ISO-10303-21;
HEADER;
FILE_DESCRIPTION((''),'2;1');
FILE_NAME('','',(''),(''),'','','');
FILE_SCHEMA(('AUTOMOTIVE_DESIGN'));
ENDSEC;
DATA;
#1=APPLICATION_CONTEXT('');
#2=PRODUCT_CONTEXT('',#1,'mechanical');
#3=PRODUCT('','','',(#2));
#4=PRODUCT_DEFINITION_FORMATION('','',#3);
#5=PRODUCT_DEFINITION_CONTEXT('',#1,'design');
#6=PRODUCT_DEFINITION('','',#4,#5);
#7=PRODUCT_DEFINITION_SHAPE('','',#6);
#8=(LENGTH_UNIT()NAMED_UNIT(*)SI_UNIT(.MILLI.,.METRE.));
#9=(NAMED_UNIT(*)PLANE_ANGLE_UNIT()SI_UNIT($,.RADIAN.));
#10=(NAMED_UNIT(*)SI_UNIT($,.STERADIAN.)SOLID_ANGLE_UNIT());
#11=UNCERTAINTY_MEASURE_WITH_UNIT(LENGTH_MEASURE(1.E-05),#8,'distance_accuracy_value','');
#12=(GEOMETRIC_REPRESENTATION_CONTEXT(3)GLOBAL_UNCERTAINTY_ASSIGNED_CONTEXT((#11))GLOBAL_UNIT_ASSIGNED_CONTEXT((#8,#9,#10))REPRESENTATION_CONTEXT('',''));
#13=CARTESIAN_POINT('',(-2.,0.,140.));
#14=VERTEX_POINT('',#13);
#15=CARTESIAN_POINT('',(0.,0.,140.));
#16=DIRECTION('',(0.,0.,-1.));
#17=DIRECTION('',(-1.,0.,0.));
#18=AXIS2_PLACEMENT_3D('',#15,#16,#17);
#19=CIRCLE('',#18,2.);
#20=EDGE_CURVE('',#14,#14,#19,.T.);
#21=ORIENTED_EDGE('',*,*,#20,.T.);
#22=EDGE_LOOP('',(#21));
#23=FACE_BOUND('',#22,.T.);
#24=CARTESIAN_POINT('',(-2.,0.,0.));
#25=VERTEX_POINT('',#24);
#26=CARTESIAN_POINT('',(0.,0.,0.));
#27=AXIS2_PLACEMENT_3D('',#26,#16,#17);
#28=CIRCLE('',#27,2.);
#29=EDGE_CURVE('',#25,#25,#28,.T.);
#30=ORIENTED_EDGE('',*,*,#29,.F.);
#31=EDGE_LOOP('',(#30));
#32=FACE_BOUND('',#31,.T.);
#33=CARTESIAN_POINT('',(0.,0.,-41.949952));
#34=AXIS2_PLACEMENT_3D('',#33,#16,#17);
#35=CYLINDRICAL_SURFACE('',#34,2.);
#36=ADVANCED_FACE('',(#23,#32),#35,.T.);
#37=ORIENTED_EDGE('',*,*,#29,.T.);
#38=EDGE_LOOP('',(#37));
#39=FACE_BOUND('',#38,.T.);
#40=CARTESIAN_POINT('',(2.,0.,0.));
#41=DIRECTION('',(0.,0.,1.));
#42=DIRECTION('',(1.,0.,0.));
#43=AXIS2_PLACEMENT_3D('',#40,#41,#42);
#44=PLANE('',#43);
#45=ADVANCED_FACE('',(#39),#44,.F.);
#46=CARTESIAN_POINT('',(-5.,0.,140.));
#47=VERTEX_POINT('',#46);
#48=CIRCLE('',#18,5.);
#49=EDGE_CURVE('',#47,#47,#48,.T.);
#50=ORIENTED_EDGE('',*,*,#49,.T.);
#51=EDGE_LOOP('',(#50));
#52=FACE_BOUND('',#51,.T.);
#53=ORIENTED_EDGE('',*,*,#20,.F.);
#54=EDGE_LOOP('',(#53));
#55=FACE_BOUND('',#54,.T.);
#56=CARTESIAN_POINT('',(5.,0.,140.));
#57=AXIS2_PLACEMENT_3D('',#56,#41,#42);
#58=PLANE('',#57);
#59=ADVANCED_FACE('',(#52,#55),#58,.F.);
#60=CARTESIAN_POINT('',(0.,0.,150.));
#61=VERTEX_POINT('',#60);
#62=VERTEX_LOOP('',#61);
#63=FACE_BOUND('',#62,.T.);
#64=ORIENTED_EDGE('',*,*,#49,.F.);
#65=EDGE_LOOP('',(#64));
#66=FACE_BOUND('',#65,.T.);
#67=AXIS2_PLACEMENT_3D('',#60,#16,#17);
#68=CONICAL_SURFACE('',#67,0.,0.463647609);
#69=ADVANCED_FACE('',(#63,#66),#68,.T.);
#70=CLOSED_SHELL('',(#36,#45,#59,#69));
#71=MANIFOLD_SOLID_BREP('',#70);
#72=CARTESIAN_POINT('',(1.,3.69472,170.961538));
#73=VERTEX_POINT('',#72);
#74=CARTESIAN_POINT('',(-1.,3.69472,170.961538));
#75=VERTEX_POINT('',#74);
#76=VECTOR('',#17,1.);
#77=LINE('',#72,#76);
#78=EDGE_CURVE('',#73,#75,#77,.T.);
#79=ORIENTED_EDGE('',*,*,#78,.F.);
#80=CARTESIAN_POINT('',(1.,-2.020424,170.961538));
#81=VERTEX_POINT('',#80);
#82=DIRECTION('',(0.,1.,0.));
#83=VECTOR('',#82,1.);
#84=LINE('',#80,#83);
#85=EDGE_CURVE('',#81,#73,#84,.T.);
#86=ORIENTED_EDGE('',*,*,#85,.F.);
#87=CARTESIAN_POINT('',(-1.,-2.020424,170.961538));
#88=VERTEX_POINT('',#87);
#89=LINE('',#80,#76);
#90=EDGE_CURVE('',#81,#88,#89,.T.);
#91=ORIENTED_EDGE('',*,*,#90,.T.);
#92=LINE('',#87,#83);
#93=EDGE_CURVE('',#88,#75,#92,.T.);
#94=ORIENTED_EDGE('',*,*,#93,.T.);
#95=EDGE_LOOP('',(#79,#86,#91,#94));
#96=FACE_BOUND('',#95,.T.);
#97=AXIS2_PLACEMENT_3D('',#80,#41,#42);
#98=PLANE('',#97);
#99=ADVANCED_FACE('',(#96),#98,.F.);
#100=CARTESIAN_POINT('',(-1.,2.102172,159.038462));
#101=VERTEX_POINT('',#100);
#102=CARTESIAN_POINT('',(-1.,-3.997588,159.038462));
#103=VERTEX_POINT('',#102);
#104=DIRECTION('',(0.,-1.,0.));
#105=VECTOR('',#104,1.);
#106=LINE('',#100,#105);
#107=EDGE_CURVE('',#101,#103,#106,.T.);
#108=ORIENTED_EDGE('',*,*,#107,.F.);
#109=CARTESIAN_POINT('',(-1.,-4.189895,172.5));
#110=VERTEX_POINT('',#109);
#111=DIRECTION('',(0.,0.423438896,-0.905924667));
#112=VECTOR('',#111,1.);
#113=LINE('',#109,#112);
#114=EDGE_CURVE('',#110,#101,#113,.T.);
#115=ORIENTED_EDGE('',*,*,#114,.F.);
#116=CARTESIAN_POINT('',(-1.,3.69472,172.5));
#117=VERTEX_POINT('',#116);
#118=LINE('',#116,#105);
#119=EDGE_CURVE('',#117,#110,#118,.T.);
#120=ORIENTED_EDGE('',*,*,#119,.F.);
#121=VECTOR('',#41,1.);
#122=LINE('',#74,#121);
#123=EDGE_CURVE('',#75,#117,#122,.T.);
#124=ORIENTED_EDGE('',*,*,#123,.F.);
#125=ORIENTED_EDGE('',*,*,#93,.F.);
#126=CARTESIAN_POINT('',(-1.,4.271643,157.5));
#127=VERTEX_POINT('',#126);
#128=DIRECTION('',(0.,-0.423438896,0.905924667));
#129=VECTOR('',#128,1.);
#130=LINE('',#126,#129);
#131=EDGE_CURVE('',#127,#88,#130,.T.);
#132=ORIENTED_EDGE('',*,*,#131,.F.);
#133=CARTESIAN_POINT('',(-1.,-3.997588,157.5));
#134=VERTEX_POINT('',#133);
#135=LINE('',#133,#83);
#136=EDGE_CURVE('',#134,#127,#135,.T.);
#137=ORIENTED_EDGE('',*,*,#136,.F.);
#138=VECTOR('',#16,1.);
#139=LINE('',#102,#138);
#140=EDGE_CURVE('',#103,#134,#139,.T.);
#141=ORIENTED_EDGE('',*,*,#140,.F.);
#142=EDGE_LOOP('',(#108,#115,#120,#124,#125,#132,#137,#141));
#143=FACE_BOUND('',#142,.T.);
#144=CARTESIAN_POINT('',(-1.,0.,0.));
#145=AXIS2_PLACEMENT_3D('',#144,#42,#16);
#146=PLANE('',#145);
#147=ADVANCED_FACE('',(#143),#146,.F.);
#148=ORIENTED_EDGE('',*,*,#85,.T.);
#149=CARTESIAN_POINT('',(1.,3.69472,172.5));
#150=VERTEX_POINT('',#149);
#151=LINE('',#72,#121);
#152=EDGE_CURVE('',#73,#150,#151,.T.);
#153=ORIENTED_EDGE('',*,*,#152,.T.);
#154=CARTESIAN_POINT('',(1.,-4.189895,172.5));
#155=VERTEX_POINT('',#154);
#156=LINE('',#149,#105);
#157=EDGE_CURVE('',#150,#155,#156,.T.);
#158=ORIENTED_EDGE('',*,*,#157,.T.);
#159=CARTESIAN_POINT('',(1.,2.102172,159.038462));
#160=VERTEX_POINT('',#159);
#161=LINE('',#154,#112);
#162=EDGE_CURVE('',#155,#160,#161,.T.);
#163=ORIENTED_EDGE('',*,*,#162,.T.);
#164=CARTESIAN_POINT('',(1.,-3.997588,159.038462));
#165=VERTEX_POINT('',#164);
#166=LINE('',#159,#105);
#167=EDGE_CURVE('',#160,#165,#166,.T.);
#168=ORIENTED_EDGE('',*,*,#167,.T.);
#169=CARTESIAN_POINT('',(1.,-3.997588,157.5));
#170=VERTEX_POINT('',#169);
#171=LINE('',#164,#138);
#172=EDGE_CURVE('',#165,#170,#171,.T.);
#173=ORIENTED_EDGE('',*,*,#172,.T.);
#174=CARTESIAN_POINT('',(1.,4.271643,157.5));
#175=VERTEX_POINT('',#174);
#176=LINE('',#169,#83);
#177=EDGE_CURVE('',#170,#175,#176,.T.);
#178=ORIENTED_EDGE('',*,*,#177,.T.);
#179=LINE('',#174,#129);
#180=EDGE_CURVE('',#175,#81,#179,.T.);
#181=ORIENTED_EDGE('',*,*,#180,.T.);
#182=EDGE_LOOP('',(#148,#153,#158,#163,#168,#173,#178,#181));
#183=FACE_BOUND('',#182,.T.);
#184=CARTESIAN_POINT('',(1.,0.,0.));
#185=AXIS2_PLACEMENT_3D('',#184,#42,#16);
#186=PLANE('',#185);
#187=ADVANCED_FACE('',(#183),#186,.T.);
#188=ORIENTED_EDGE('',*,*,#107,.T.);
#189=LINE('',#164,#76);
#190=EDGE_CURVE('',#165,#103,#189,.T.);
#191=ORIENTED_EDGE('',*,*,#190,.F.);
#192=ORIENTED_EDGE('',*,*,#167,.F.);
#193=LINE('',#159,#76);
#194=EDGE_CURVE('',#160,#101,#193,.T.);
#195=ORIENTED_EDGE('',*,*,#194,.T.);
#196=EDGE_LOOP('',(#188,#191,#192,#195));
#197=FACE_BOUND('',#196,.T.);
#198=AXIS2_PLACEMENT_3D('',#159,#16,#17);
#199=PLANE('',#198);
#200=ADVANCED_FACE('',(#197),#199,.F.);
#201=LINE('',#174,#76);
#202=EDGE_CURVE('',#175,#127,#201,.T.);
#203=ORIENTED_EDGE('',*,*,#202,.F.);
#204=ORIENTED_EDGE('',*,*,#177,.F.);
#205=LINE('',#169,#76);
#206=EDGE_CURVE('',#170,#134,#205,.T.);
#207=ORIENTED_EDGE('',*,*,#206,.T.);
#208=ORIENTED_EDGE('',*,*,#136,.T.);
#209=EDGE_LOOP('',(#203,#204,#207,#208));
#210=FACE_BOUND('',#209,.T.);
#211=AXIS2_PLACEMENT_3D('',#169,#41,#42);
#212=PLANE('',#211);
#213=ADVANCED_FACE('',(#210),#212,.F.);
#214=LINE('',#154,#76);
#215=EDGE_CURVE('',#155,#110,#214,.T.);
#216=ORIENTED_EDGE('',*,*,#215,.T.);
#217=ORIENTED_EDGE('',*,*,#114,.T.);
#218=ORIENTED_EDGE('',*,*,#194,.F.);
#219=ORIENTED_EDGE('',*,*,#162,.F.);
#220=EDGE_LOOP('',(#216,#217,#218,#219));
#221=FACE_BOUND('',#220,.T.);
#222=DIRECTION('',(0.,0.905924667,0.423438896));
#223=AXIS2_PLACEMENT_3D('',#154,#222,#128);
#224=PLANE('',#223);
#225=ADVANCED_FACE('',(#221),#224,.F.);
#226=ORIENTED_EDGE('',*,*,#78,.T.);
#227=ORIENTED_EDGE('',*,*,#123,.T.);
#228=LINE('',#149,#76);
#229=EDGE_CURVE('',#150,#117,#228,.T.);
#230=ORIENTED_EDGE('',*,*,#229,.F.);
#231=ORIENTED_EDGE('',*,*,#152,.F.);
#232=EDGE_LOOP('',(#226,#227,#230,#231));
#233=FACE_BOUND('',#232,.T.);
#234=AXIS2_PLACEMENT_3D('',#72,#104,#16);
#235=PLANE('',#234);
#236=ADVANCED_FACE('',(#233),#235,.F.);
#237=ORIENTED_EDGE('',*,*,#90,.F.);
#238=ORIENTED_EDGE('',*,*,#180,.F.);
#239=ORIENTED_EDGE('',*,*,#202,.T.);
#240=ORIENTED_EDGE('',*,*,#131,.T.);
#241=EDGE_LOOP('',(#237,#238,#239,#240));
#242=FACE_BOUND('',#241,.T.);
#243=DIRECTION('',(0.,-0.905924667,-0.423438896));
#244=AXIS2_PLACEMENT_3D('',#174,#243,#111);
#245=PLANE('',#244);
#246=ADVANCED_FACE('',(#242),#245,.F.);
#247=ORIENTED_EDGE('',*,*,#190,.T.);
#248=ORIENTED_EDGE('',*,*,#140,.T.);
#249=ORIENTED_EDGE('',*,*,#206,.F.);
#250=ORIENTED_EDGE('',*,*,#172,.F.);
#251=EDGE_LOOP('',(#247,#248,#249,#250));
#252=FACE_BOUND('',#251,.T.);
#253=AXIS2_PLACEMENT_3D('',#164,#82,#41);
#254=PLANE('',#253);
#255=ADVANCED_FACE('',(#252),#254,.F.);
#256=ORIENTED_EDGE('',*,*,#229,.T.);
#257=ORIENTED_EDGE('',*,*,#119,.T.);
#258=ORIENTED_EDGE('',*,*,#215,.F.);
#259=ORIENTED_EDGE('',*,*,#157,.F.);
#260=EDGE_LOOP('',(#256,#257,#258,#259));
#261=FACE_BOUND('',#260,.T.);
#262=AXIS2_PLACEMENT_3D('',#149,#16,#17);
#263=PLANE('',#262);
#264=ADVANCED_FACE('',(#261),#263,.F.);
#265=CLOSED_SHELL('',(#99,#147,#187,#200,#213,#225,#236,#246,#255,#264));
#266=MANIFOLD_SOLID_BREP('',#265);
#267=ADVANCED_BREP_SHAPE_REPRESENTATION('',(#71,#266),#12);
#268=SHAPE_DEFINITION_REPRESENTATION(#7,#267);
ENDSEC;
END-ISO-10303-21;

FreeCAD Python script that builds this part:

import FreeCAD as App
import Part
import Sketcher
Q = App.Units.Quantity


def add_polygon(sketch, points):
    """Adds a closed chain of lines whose ends are joined by coincident constraints."""
    first, n = sketch.GeometryCount, len(points)
    for a, b in zip(points, points[1:] + points[:1]):
        sketch.addGeometry(Part.LineSegment(App.Vector(*a, 0), App.Vector(*b, 0)), False)
    for i in range(n):
        sketch.addConstraint(Sketcher.Constraint("Coincident", first + i, 2, first + (i + 1) % n, 1))

doc = App.newDocument("Part")
params = doc.addObject("Spreadsheet::Sheet", "Params")
for row, (alias, value) in enumerate([
    ("sketch1_width", "3 mm"),
    ("sketch1_width2", "2 mm"),
    ("sketch1_height", "140 mm"),
    ("sketch1_height2", "150 mm"),
    ("revolution_angle", "360 deg"),
    ("pad1_length", "1 mm"),
    ("pad1_length2", "1 mm"),
], start=1):
    params.set(f"A{row}", alias)
    params.set(f"B{row}", "=" + value)
    params.setAlias(f"B{row}", alias)

body = doc.addObject("PartDesign::Body", "Body")

# Sketch on XZ plane
sketch1 = doc.addObject("Sketcher::SketchObject", "Sketch")
body.addObject(sketch1)
sketch1.AttachmentSupport = (doc.XZ_Plane, [""])
sketch1.MapMode = "FlatFace"
add_polygon(sketch1, [(0, 150), (5, 140), (2, 140), (2, 0), (0, 0)])  # lines 0-4
sketch1.addConstraint([
    Sketcher.Constraint("Horizontal", 1),
    Sketcher.Constraint("Vertical", 2),
    Sketcher.Constraint("Horizontal", 3),
    Sketcher.Constraint("Vertical", 4),
    Sketcher.Constraint("Coincident", 3, 2, -1, 1),
    Sketcher.Constraint("DistanceX", 1, 2, 1, 1, Q("3 mm")),
    Sketcher.Constraint("DistanceX", 3, 2, 3, 1, Q("2 mm")),
    Sketcher.Constraint("DistanceY", 2, 2, 2, 1, Q("140 mm")),
    Sketcher.Constraint("DistanceY", 4, 1, 4, 2, Q("150 mm")),
])
sketch1.setExpression("Constraints[10]", "Params.sketch1_width")
sketch1.setExpression("Constraints[11]", "Params.sketch1_width2")
sketch1.setExpression("Constraints[12]", "Params.sketch1_height")
sketch1.setExpression("Constraints[13]", "Params.sketch1_height2")
revolution = doc.addObject("PartDesign::Revolution", "Revolution")
body.addObject(revolution)
revolution.Profile = sketch1
revolution.ReferenceAxis = (sketch1, ["V_Axis"])
revolution.setExpression("Angle", "Params.revolution_angle")
body2 = doc.addObject("PartDesign::Body", "Body001")

# Sketch on YZ plane
sketch2 = doc.addObject("Sketcher::SketchObject", "Sketch001")
body2.addObject(sketch2)
sketch2.AttachmentSupport = (doc.getObject("YZ_Plane001"), [""])
sketch2.MapMode = "FlatFace"
add_polygon(sketch2, [(3.7, 171), (3.7, 172.5), (-4.2, 172.5), (2.1, 159), (-4, 159), (-4, 157.5), (4.3, 157.5), (-2, 171)])  # lines 0-7
sketch2.addConstraint([
    Sketcher.Constraint("Vertical", 0),
    Sketcher.Constraint("Horizontal", 1),
    Sketcher.Constraint("Horizontal", 3),
    Sketcher.Constraint("Vertical", 4),
    Sketcher.Constraint("Horizontal", 5),
    Sketcher.Constraint("Horizontal", 7),
    Sketcher.Constraint("Parallel", 2, 6),
    Sketcher.Constraint("Equal", 0, 4),
    Sketcher.Constraint("DistanceY", 4, 2, 1, 2, Q("15 mm")),
    Sketcher.Constraint("DistanceY", -1, 1, 0, 2, Q("172.5 mm")),
    Sketcher.Constraint("DistanceX", 3, 2, 3, 1, Q("6.09976 mm")),
    Sketcher.Constraint("DistanceX", 5, 1, 5, 2, Q("8.269231 mm")),
    Sketcher.Constraint("DistanceY", 0, 1, 0, 2, Q("1.538462 mm")),
    Sketcher.Constraint("DistanceX", 1, 2, 1, 1, Q("7.884615 mm")),
    Sketcher.Constraint("DistanceX", -1, 1, 0, 2, Q("3.69472 mm")),
    Sketcher.Constraint("DistanceX", -1, 1, 2, 2, Q("2.102172 mm")),
])
pad1 = doc.addObject("PartDesign::Pad", "Pad")
body2.addObject(pad1)
pad1.Profile = sketch2
pad1.Type = "TwoLengths"
pad1.setExpression("Length", "Params.pad1_length")
pad1.setExpression("Length2", "Params.pad1_length2")

doc.recompute()
